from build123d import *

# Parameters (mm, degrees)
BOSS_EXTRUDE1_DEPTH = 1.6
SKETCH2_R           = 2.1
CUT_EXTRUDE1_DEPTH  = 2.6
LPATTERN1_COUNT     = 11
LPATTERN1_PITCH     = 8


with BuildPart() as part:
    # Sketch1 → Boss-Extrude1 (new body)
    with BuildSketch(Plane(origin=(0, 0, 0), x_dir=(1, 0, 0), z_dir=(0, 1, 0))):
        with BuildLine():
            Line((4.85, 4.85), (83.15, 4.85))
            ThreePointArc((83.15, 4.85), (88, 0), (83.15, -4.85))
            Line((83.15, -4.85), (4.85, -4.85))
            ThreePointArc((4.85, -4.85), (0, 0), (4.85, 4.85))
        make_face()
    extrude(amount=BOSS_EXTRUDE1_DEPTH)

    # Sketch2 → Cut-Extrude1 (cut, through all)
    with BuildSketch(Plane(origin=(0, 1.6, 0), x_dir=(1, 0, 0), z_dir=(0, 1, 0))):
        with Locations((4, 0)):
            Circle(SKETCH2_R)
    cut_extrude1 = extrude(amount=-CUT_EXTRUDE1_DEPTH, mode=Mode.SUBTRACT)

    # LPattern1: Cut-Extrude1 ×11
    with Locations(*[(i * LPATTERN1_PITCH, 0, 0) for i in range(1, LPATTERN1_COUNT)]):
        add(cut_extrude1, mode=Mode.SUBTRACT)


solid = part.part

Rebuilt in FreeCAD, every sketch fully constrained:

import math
import FreeCAD as App
import Part
import Sketcher
from FreeCAD import Vector

doc = App.newDocument("Part")
params = doc.addObject("Spreadsheet::Sheet", "Params")
for row, (alias, value) in enumerate([
    ("sketch1_radius", "4.85 mm"),
    ("sketch1_width", "78.3 mm"),
    ("pad1_length", "1.6 mm"),
    ("sketch2_diameter", "4.2 mm"),
    ("linearpattern_pitch", "8 mm"),
], start=1):
    params.set(f"A{row}", alias)
    params.set(f"B{row}", "=" + value)
    params.setAlias(f"B{row}", alias)

body = doc.addObject("PartDesign::Body", "Body")

# Sketch on XZ plane
sketch1 = body.newObject("Sketcher::SketchObject", "Sketch")
sketch1.AttachmentSupport = (doc.getObject("XZ_Plane"), [""])
sketch1.MapMode = "FlatFace"
sketch1.addGeometry(Part.LineSegment(Vector(83.2, -4.8, 0), Vector(4.8, -4.8, 0)), False)
sketch1.addGeometry(Part.ArcOfCircle(Part.Circle(Vector(4.8, 0, 0), Vector(0, 0, 1), 4.8), math.radians(90), math.radians(270)), False)
sketch1.addGeometry(Part.LineSegment(Vector(4.8, 4.8, 0), Vector(83.2, 4.8, 0)), False)
sketch1.addGeometry(Part.ArcOfCircle(Part.Circle(Vector(83.2, 0, 0), Vector(0, 0, 1), 4.8), math.radians(-90), math.radians(90)), False)
sketch1.addConstraint(Sketcher.Constraint("Tangent", 0, 2, 1, 2))
sketch1.addConstraint(Sketcher.Constraint("Tangent", 1, 1, 2, 1))
sketch1.addConstraint(Sketcher.Constraint("Tangent", 2, 2, 3, 2))
sketch1.addConstraint(Sketcher.Constraint("Tangent", 3, 1, 0, 1))
sketch1.addConstraint(Sketcher.Constraint("Horizontal", 0))
sketch1.addConstraint(Sketcher.Constraint("Horizontal", 2))
sketch1.addConstraint(Sketcher.Constraint("PointOnObject", 1, 3, -1))
sketch1.addConstraint(Sketcher.Constraint("Radius", 1, 4.85))
sketch1.addConstraint(Sketcher.Constraint("DistanceX", 0, 2, 0, 1, 78.3))
sketch1.addConstraint(Sketcher.Constraint("DistanceX", -1, 1, 1, 3, 4.85))
sketch1.setExpression("Constraints[7]", "Params.sketch1_radius")
sketch1.setExpression("Constraints[8]", "Params.sketch1_width")
pad1 = body.newObject("PartDesign::Pad", "Pad")
pad1.Profile = sketch1
pad1.setExpression("Length", "Params.pad1_length")
pad1.Reversed = True

# Sketch on XZ plane
sketch2 = body.newObject("Sketcher::SketchObject", "Sketch001")
sketch2.AttachmentSupport = (doc.getObject("XZ_Plane"), [""])
sketch2.MapMode = "FlatFace"
sketch2.AttachmentOffset = App.Placement(Vector(0, 0, -1.6), App.Rotation())
sketch2.addGeometry(Part.Circle(Vector(4, 0, 0), Vector(0, 0, 1), 2.1), False)
sketch2.addConstraint(Sketcher.Constraint("PointOnObject", 0, 3, -1))
sketch2.addConstraint(Sketcher.Constraint("Diameter", 0, 4.2))
sketch2.addConstraint(Sketcher.Constraint("DistanceX", -1, 1, 0, 3, 4.0))
sketch2.setExpression("Constraints[1]", "Params.sketch2_diameter")
pocket1 = body.newObject("PartDesign::Pocket", "Pocket")
pocket1.Profile = sketch2
pocket1.Type = "ThroughAll"
pocket1.Reversed = True
doc.recompute()

linearpattern = body.newObject("PartDesign::LinearPattern", "LinearPattern")
linearpattern.Originals = [pocket1]
linearpattern.Direction = (doc.getObject("X_Axis"), [""])
linearpattern.Mode = "offset"
linearpattern.setExpression("Offset", "Params.linearpattern_pitch")
linearpattern.Occurrences = 11
body.Tip = linearpattern

doc.recompute()
